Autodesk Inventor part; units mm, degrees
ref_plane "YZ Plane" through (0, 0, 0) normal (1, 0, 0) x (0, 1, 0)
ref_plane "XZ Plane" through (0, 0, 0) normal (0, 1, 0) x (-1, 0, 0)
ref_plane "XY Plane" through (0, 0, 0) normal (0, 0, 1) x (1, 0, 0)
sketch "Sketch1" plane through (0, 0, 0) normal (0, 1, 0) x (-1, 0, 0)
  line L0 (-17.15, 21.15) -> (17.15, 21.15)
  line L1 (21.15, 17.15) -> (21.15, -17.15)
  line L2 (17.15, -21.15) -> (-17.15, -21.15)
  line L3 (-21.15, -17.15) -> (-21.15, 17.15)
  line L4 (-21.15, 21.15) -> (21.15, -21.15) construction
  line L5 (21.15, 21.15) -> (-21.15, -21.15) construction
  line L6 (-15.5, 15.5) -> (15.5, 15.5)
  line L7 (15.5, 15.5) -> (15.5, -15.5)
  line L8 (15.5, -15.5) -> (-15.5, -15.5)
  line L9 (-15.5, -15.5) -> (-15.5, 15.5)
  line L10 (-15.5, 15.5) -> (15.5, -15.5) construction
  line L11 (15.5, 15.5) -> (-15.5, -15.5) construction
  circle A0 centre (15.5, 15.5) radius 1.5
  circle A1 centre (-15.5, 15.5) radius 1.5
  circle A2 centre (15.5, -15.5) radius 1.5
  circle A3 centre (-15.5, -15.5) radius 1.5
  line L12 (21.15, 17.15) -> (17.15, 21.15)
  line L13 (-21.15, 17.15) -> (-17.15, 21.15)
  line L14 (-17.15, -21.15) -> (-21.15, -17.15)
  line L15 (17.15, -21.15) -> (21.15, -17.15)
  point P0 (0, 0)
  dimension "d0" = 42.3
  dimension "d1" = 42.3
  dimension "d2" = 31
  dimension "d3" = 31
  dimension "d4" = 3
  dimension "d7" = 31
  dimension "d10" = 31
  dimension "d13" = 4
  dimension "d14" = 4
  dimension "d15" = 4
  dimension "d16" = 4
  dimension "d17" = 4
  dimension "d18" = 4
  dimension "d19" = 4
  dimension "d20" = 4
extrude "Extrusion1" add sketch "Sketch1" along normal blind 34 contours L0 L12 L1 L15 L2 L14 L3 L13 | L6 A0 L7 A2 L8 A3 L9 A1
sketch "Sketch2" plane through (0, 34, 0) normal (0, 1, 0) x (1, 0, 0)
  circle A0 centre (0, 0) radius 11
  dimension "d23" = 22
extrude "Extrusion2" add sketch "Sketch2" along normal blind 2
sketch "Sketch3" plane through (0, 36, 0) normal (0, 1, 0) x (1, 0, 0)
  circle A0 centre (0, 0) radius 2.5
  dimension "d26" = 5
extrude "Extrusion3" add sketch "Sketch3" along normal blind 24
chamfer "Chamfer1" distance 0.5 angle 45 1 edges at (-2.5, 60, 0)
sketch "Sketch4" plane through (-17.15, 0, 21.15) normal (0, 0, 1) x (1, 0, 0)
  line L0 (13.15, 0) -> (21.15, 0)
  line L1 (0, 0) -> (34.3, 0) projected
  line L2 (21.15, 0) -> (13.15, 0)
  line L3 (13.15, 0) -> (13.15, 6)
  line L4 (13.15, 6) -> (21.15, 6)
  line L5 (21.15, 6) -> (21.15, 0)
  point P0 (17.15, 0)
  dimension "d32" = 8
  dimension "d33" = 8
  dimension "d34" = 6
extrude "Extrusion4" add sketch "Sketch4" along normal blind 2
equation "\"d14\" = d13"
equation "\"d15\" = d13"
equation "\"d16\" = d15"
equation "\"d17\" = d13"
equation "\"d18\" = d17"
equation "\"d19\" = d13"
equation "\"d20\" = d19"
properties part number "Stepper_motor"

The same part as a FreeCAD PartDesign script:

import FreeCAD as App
import Part
import Sketcher
Q = App.Units.Quantity


def edges_at(feature, points):
    """Names of the edges that pass closest to the given points."""
    edges = feature.Shape.Edges
    near = lambda p: min(range(len(edges)), key=lambda i: edges[i].distToShape(Part.Vertex(*p))[0])
    return sorted({f"Edge{near(p) + 1}" for p in points})

doc = App.newDocument("Part")
body = doc.addObject("PartDesign::Body", "Body")

sketch1 = body.newObject("Sketcher::SketchObject", "Sketch")
sketch1.AttachmentSupport = (doc.getObject("XZ_Plane"), [""])
sketch1.MapMode = "FlatFace"
sketch1.addGeometry(Part.LineSegment(App.Vector(-17.15, 21.15, 0), App.Vector(17.15, 21.15, 0)), False)
sketch1.addGeometry(Part.LineSegment(App.Vector(17.15, 21.15, 0), App.Vector(21.15, 17.15, 0)), False)
sketch1.addGeometry(Part.LineSegment(App.Vector(21.15, 17.15, 0), App.Vector(21.15, -17.15, 0)), False)
sketch1.addGeometry(Part.LineSegment(App.Vector(21.15, -17.15, 0), App.Vector(17.15, -21.15, 0)), False)
sketch1.addGeometry(Part.LineSegment(App.Vector(17.15, -21.15, 0), App.Vector(-17.15, -21.15, 0)), False)
sketch1.addGeometry(Part.LineSegment(App.Vector(-17.15, -21.15, 0), App.Vector(-21.15, -17.15, 0)), False)
sketch1.addGeometry(Part.LineSegment(App.Vector(-21.15, -17.15, 0), App.Vector(-21.15, 17.15, 0)), False)
sketch1.addGeometry(Part.LineSegment(App.Vector(-21.15, 17.15, 0), App.Vector(-17.15, 21.15, 0)), False)
sketch1.addGeometry(Part.Circle(App.Vector(15.5, 15.5, 0), App.Vector(0, 0, 1), 1.5), False)
sketch1.addGeometry(Part.Circle(App.Vector(15.5, -15.5, 0), App.Vector(0, 0, 1), 1.5), False)
sketch1.addGeometry(Part.Circle(App.Vector(-15.5, -15.5, 0), App.Vector(0, 0, 1), 1.5), False)
sketch1.addGeometry(Part.Circle(App.Vector(-15.5, 15.5, 0), App.Vector(0, 0, 1), 1.5), False)
sketch1.addConstraint(Sketcher.Constraint("Coincident", 0, 2, 1, 1))
sketch1.addConstraint(Sketcher.Constraint("Coincident", 1, 2, 2, 1))
sketch1.addConstraint(Sketcher.Constraint("Coincident", 2, 2, 3, 1))
sketch1.addConstraint(Sketcher.Constraint("Coincident", 3, 2, 4, 1))
sketch1.addConstraint(Sketcher.Constraint("Coincident", 4, 2, 5, 1))
sketch1.addConstraint(Sketcher.Constraint("Coincident", 5, 2, 6, 1))
sketch1.addConstraint(Sketcher.Constraint("Coincident", 6, 2, 7, 1))
sketch1.addConstraint(Sketcher.Constraint("Coincident", 7, 2, 0, 1))
sketch1.addConstraint(Sketcher.Constraint("Horizontal", 0))
sketch1.addConstraint(Sketcher.Constraint("Vertical", 2))
sketch1.addConstraint(Sketcher.Constraint("Horizontal", 4))
sketch1.addConstraint(Sketcher.Constraint("Vertical", 6))
sketch1.addConstraint(Sketcher.Constraint("Equal", 8, 9))
sketch1.addConstraint(Sketcher.Constraint("Equal", 9, 10))
sketch1.addConstraint(Sketcher.Constraint("Equal", 10, 11))
sketch1.addConstraint(Sketcher.Constraint("Symmetric", 8, 3, 10, 3, -1, 1))
sketch1.addConstraint(Sketcher.Constraint("Symmetric", 9, 3, 11, 3, -1, 1))
sketch1.addConstraint(Sketcher.Constraint("Symmetric", 0, 2, 4, 2, -1, 1))
sketch1.addConstraint(Sketcher.Constraint("Symmetric", 1, 2, 5, 2, -1, 1))
sketch1.addConstraint(Sketcher.Constraint("Symmetric", 9, 3, 10, 3, -2))
sketch1.addConstraint(Sketcher.Constraint("Perpendicular", 1, 3))
sketch1.addConstraint(Sketcher.Constraint("Perpendicular", 5, 7))
sketch1.addConstraint(Sketcher.Constraint("Horizontal", 2, 2, 5, 2))
sketch1.addConstraint(Sketcher.Constraint("Horizontal", 1, 2, 6, 2))
sketch1.addConstraint(Sketcher.Constraint("Vertical", 0, 2, 3, 2))
sketch1.addConstraint(Sketcher.Constraint("Equal", 4, 2))
sketch1.addConstraint(Sketcher.Constraint("Diameter", 8, Q("3 mm")))
sketch1.addConstraint(Sketcher.Constraint("DistanceY", 9, 3, 8, 3, Q("31 mm")))
sketch1.addConstraint(Sketcher.Constraint("DistanceX", 10, 3, 9, 3, Q("31 mm")))
sketch1.addConstraint(Sketcher.Constraint("DistanceX", 0, 2, 1, 2, Q("4 mm")))
sketch1.addConstraint(Sketcher.Constraint("DistanceX", 0, 1, 0, 2, Q("34.3 mm")))
pad1 = body.newObject("PartDesign::Pad", "Pad")
pad1.Profile = sketch1
pad1.Length = 34
pad1.Reversed = True

sketch2 = body.newObject("Sketcher::SketchObject", "Sketch001")
sketch2.AttachmentSupport = (doc.getObject("XZ_Plane"), [""])
sketch2.MapMode = "FlatFace"
sketch2.AttachmentOffset = App.Placement(App.Vector(0, 0, -34), App.Rotation())
sketch2.addGeometry(Part.Circle(App.Vector(0, 0, 0), App.Vector(0, 0, 1), 11), False)
sketch2.addConstraint(Sketcher.Constraint("Coincident", 0, 3, -1, 1))
sketch2.addConstraint(Sketcher.Constraint("Diameter", 0, Q("22 mm")))
pad2 = body.newObject("PartDesign::Pad", "Pad001")
pad2.Profile = sketch2
pad2.Length = 2
pad2.Reversed = True

sketch3 = body.newObject("Sketcher::SketchObject", "Sketch002")
sketch3.AttachmentSupport = (doc.getObject("XZ_Plane"), [""])
sketch3.MapMode = "FlatFace"
sketch3.AttachmentOffset = App.Placement(App.Vector(0, 0, -36), App.Rotation())
sketch3.addGeometry(Part.Circle(App.Vector(0, 0, 0), App.Vector(0, 0, 1), 2.5), False)
sketch3.addConstraint(Sketcher.Constraint("Coincident", 0, 3, -1, 1))
sketch3.addConstraint(Sketcher.Constraint("Diameter", 0, Q("5 mm")))
pad3 = body.newObject("PartDesign::Pad", "Pad002")
pad3.Profile = sketch3
pad3.Length = 24
pad3.Reversed = True
doc.recompute()

chamfer = body.newObject("PartDesign::Chamfer", "Chamfer")
chamfer.Base = (pad3, edges_at(pad3, [(-2.5, 60, 0)]))
chamfer.Size = 0.5

sketch4 = body.newObject("Sketcher::SketchObject", "Sketch003")
sketch4.AttachmentSupport = (doc.getObject("XY_Plane"), [""])
sketch4.MapMode = "FlatFace"
sketch4.AttachmentOffset = App.Placement(App.Vector(0, 0, 21.15), App.Rotation())
sketch4.addGeometry(Part.LineSegment(App.Vector(-4, 6, 0), App.Vector(-4, 0, 0)), False)
sketch4.addGeometry(Part.LineSegment(App.Vector(-4, 0, 0), App.Vector(4, 0, 0)), False)
sketch4.addGeometry(Part.LineSegment(App.Vector(4, 0, 0), App.Vector(4, 6, 0)), False)
sketch4.addGeometry(Part.LineSegment(App.Vector(4, 6, 0), App.Vector(-4, 6, 0)), False)
sketch4.addConstraint(Sketcher.Constraint("Coincident", 0, 2, 1, 1))
sketch4.addConstraint(Sketcher.Constraint("Coincident", 1, 2, 2, 1))
sketch4.addConstraint(Sketcher.Constraint("Coincident", 2, 2, 3, 1))
sketch4.addConstraint(Sketcher.Constraint("Coincident", 3, 2, 0, 1))
sketch4.addConstraint(Sketcher.Constraint("Vertical", 0))
sketch4.addConstraint(Sketcher.Constraint("Horizontal", 1))
sketch4.addConstraint(Sketcher.Constraint("Vertical", 2))
sketch4.addConstraint(Sketcher.Constraint("Horizontal", 3))
sketch4.addConstraint(Sketcher.Constraint("Symmetric", 0, 2, 1, 2, -1, 1))
sketch4.addConstraint(Sketcher.Constraint("DistanceX", 1, 1, 1, 2, Q("8 mm")))
sketch4.addConstraint(Sketcher.Constraint("DistanceY", 0, 2, 0, 1, Q("6 mm")))
pad4 = body.newObject("PartDesign::Pad", "Pad003")
pad4.Profile = sketch4
pad4.Length = 2

doc.recompute()
